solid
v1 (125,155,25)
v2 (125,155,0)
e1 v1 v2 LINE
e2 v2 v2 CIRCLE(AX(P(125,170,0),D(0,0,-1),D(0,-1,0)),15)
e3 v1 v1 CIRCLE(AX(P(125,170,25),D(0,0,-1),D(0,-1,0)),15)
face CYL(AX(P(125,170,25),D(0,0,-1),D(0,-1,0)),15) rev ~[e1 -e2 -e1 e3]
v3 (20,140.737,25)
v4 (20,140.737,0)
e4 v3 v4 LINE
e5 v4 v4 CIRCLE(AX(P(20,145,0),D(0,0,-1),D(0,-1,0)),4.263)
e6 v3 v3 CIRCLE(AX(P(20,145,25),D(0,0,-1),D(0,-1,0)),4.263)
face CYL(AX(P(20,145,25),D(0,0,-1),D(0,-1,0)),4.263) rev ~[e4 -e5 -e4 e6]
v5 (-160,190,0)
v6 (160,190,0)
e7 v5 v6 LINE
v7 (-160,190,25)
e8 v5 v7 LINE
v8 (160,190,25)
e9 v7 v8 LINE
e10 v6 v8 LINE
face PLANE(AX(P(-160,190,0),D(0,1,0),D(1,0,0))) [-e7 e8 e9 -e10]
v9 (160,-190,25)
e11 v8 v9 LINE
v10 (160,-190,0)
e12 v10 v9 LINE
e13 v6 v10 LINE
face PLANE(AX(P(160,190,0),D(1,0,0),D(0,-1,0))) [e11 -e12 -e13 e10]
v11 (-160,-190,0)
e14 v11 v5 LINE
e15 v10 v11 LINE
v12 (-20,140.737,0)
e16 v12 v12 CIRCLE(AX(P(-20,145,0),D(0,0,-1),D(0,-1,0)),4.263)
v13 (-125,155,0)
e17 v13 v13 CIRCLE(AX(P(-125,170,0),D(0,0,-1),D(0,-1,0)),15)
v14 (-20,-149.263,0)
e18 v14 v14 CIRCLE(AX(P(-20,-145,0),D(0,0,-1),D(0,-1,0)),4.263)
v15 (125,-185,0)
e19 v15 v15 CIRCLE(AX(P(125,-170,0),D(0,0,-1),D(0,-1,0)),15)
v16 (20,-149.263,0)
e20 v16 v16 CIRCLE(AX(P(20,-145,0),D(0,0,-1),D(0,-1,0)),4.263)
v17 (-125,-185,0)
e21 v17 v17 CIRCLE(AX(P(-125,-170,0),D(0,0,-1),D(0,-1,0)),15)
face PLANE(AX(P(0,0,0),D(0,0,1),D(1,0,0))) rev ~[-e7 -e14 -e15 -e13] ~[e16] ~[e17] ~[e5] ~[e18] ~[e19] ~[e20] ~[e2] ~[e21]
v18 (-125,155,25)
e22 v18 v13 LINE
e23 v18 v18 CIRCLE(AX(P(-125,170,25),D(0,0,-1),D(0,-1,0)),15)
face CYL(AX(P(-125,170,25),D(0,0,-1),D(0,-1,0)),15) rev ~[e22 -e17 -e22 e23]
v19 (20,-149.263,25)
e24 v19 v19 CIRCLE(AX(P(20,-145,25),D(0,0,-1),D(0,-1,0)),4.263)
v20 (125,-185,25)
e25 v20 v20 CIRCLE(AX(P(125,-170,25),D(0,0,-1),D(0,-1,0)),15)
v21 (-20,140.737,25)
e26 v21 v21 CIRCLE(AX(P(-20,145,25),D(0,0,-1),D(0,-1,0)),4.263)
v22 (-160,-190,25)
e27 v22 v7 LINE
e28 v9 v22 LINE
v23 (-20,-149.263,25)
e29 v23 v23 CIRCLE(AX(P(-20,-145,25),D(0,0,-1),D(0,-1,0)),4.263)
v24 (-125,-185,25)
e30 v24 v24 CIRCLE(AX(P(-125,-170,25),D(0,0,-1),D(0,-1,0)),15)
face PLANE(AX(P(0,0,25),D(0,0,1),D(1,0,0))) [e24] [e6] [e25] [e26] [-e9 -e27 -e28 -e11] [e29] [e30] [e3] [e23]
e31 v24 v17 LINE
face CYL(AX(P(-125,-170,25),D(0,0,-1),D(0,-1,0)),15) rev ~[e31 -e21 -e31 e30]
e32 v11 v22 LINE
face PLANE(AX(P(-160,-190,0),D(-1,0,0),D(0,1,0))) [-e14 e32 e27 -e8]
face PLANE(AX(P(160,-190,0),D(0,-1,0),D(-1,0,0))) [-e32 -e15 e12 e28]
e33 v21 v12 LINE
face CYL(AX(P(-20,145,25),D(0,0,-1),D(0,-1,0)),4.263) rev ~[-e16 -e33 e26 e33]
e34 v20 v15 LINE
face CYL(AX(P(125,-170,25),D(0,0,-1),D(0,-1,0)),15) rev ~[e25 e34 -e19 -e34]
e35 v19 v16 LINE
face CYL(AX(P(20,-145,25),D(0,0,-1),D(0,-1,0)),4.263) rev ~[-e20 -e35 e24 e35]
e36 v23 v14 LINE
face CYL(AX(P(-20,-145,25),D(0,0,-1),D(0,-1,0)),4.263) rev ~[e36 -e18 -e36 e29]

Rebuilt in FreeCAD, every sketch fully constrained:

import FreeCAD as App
import Part
import Sketcher

V = App.Vector
Q = App.Units.Quantity


def add_polygon(sketch, points):
    """Adds a closed chain of lines whose ends are joined by coincident constraints."""
    first, n = sketch.GeometryCount, len(points)
    for a, b in zip(points, points[1:] + points[:1]):
        sketch.addGeometry(Part.LineSegment(App.Vector(*a, 0), App.Vector(*b, 0)), False)
    for i in range(n):
        sketch.addConstraint(Sketcher.Constraint("Coincident", first + i, 2, first + (i + 1) % n, 1))

doc = App.newDocument("Part")
body = doc.addObject("PartDesign::Body", "Body")

# Sketch on XY plane
sketch1 = doc.addObject("Sketcher::SketchObject", "Sketch")
body.addObject(sketch1)
sketch1.AttachmentSupport = (doc.XY_Plane, [""])
sketch1.MapMode = "FlatFace"
add_polygon(sketch1, [(-160, -190), (160, -190), (160, 190), (-160, 190)])  # lines 0-3
sketch1.addConstraint([
    Sketcher.Constraint("Horizontal", 0),
    Sketcher.Constraint("Vertical", 1),
    Sketcher.Constraint("Horizontal", 2),
    Sketcher.Constraint("Vertical", 3),
    Sketcher.Constraint("Symmetric", 0, 2, 2, 2, -1, 1),
    Sketcher.Constraint("DistanceX", 0, 1, 0, 2, Q("320 mm")),
    Sketcher.Constraint("DistanceY", 1, 1, 1, 2, Q("380 mm")),
])
pad1 = doc.addObject("PartDesign::Pad", "Pad")
body.addObject(pad1)
pad1.Profile = sketch1
pad1.Length = 25

# Sketch on XY plane
sketch2 = doc.addObject("Sketcher::SketchObject", "Sketch001")
body.addObject(sketch2)
sketch2.AttachmentSupport = (doc.XY_Plane, [""])
sketch2.MapMode = "FlatFace"
sketch2.AttachmentOffset = App.Placement(V(0, 0, 25), App.Rotation())
sketch2.addGeometry([
    Part.Circle(V(-125, 170, 0), V(0, 0, 1), 15),
    Part.Circle(V(125, 170, 0), V(0, 0, 1), 15),
    Part.Circle(V(125, -170, 0), V(0, 0, 1), 15),
    Part.Circle(V(-125, -170, 0), V(0, 0, 1), 15),
], False)
sketch2.addConstraint([
    Sketcher.Constraint("Equal", 0, 1),
    Sketcher.Constraint("Equal", 1, 2),
    Sketcher.Constraint("Equal", 2, 3),
    Sketcher.Constraint("Symmetric", 0, 3, 2, 3, -1, 1),
    Sketcher.Constraint("Symmetric", 1, 3, 3, 3, -1, 1),
    Sketcher.Constraint("Symmetric", 0, 3, 1, 3, -2),
    Sketcher.Constraint("Diameter", 0, Q("30 mm")),
    Sketcher.Constraint("DistanceX", 0, 3, -1, 1, Q("125 mm")),
    Sketcher.Constraint("DistanceY", -1, 1, 0, 3, Q("170 mm")),
])
doc.recompute()
hole = doc.addObject("PartDesign::Hole", "Hole")
body.addObject(hole)
hole.Profile = sketch2
hole.ThreadType = "None"
hole.Diameter = 30
hole.DepthType = "Dimension"
hole.Depth = 25
hole.DrillPoint = "Angled"
hole.DrillPointAngle = 118

# Sketch on XY plane
sketch3 = doc.addObject("Sketcher::SketchObject", "Sketch002")
body.addObject(sketch3)
sketch3.AttachmentSupport = (doc.XY_Plane, [""])
sketch3.MapMode = "FlatFace"
sketch3.AttachmentOffset = App.Placement(V(0, 0, 25), App.Rotation())
sketch3.addGeometry([
    Part.Circle(V(-20, 145, 0), V(0, 0, 1), 4.263),
    Part.Circle(V(20, 145, 0), V(0, 0, 1), 4.263),
    Part.Circle(V(-20, -145, 0), V(0, 0, 1), 4.263),
    Part.Circle(V(20, -145, 0), V(0, 0, 1), 4.263),
], False)
sketch3.addConstraint([
    Sketcher.Constraint("Equal", 0, 1),
    Sketcher.Constraint("Equal", 1, 2),
    Sketcher.Constraint("Equal", 2, 3),
    Sketcher.Constraint("Symmetric", 1, 3, 2, 3, -1, 1),
    Sketcher.Constraint("Symmetric", 0, 3, 3, 3, -1, 1),
    Sketcher.Constraint("Symmetric", 0, 3, 1, 3, -2),
    Sketcher.Constraint("Diameter", 0, Q("8.526 mm")),
    Sketcher.Constraint("DistanceX", 0, 3, -1, 1, Q("20 mm")),
    Sketcher.Constraint("DistanceY", -1, 1, 0, 3, Q("145 mm")),
])
doc.recompute()
hole2 = doc.addObject("PartDesign::Hole", "Hole001")
body.addObject(hole2)
hole2.Profile = sketch3
hole2.ThreadType = "None"
hole2.Diameter = 8.526
hole2.DepthType = "Dimension"
hole2.Depth = 25
hole2.DrillPoint = "Angled"
hole2.DrillPointAngle = 118

doc.recompute()
